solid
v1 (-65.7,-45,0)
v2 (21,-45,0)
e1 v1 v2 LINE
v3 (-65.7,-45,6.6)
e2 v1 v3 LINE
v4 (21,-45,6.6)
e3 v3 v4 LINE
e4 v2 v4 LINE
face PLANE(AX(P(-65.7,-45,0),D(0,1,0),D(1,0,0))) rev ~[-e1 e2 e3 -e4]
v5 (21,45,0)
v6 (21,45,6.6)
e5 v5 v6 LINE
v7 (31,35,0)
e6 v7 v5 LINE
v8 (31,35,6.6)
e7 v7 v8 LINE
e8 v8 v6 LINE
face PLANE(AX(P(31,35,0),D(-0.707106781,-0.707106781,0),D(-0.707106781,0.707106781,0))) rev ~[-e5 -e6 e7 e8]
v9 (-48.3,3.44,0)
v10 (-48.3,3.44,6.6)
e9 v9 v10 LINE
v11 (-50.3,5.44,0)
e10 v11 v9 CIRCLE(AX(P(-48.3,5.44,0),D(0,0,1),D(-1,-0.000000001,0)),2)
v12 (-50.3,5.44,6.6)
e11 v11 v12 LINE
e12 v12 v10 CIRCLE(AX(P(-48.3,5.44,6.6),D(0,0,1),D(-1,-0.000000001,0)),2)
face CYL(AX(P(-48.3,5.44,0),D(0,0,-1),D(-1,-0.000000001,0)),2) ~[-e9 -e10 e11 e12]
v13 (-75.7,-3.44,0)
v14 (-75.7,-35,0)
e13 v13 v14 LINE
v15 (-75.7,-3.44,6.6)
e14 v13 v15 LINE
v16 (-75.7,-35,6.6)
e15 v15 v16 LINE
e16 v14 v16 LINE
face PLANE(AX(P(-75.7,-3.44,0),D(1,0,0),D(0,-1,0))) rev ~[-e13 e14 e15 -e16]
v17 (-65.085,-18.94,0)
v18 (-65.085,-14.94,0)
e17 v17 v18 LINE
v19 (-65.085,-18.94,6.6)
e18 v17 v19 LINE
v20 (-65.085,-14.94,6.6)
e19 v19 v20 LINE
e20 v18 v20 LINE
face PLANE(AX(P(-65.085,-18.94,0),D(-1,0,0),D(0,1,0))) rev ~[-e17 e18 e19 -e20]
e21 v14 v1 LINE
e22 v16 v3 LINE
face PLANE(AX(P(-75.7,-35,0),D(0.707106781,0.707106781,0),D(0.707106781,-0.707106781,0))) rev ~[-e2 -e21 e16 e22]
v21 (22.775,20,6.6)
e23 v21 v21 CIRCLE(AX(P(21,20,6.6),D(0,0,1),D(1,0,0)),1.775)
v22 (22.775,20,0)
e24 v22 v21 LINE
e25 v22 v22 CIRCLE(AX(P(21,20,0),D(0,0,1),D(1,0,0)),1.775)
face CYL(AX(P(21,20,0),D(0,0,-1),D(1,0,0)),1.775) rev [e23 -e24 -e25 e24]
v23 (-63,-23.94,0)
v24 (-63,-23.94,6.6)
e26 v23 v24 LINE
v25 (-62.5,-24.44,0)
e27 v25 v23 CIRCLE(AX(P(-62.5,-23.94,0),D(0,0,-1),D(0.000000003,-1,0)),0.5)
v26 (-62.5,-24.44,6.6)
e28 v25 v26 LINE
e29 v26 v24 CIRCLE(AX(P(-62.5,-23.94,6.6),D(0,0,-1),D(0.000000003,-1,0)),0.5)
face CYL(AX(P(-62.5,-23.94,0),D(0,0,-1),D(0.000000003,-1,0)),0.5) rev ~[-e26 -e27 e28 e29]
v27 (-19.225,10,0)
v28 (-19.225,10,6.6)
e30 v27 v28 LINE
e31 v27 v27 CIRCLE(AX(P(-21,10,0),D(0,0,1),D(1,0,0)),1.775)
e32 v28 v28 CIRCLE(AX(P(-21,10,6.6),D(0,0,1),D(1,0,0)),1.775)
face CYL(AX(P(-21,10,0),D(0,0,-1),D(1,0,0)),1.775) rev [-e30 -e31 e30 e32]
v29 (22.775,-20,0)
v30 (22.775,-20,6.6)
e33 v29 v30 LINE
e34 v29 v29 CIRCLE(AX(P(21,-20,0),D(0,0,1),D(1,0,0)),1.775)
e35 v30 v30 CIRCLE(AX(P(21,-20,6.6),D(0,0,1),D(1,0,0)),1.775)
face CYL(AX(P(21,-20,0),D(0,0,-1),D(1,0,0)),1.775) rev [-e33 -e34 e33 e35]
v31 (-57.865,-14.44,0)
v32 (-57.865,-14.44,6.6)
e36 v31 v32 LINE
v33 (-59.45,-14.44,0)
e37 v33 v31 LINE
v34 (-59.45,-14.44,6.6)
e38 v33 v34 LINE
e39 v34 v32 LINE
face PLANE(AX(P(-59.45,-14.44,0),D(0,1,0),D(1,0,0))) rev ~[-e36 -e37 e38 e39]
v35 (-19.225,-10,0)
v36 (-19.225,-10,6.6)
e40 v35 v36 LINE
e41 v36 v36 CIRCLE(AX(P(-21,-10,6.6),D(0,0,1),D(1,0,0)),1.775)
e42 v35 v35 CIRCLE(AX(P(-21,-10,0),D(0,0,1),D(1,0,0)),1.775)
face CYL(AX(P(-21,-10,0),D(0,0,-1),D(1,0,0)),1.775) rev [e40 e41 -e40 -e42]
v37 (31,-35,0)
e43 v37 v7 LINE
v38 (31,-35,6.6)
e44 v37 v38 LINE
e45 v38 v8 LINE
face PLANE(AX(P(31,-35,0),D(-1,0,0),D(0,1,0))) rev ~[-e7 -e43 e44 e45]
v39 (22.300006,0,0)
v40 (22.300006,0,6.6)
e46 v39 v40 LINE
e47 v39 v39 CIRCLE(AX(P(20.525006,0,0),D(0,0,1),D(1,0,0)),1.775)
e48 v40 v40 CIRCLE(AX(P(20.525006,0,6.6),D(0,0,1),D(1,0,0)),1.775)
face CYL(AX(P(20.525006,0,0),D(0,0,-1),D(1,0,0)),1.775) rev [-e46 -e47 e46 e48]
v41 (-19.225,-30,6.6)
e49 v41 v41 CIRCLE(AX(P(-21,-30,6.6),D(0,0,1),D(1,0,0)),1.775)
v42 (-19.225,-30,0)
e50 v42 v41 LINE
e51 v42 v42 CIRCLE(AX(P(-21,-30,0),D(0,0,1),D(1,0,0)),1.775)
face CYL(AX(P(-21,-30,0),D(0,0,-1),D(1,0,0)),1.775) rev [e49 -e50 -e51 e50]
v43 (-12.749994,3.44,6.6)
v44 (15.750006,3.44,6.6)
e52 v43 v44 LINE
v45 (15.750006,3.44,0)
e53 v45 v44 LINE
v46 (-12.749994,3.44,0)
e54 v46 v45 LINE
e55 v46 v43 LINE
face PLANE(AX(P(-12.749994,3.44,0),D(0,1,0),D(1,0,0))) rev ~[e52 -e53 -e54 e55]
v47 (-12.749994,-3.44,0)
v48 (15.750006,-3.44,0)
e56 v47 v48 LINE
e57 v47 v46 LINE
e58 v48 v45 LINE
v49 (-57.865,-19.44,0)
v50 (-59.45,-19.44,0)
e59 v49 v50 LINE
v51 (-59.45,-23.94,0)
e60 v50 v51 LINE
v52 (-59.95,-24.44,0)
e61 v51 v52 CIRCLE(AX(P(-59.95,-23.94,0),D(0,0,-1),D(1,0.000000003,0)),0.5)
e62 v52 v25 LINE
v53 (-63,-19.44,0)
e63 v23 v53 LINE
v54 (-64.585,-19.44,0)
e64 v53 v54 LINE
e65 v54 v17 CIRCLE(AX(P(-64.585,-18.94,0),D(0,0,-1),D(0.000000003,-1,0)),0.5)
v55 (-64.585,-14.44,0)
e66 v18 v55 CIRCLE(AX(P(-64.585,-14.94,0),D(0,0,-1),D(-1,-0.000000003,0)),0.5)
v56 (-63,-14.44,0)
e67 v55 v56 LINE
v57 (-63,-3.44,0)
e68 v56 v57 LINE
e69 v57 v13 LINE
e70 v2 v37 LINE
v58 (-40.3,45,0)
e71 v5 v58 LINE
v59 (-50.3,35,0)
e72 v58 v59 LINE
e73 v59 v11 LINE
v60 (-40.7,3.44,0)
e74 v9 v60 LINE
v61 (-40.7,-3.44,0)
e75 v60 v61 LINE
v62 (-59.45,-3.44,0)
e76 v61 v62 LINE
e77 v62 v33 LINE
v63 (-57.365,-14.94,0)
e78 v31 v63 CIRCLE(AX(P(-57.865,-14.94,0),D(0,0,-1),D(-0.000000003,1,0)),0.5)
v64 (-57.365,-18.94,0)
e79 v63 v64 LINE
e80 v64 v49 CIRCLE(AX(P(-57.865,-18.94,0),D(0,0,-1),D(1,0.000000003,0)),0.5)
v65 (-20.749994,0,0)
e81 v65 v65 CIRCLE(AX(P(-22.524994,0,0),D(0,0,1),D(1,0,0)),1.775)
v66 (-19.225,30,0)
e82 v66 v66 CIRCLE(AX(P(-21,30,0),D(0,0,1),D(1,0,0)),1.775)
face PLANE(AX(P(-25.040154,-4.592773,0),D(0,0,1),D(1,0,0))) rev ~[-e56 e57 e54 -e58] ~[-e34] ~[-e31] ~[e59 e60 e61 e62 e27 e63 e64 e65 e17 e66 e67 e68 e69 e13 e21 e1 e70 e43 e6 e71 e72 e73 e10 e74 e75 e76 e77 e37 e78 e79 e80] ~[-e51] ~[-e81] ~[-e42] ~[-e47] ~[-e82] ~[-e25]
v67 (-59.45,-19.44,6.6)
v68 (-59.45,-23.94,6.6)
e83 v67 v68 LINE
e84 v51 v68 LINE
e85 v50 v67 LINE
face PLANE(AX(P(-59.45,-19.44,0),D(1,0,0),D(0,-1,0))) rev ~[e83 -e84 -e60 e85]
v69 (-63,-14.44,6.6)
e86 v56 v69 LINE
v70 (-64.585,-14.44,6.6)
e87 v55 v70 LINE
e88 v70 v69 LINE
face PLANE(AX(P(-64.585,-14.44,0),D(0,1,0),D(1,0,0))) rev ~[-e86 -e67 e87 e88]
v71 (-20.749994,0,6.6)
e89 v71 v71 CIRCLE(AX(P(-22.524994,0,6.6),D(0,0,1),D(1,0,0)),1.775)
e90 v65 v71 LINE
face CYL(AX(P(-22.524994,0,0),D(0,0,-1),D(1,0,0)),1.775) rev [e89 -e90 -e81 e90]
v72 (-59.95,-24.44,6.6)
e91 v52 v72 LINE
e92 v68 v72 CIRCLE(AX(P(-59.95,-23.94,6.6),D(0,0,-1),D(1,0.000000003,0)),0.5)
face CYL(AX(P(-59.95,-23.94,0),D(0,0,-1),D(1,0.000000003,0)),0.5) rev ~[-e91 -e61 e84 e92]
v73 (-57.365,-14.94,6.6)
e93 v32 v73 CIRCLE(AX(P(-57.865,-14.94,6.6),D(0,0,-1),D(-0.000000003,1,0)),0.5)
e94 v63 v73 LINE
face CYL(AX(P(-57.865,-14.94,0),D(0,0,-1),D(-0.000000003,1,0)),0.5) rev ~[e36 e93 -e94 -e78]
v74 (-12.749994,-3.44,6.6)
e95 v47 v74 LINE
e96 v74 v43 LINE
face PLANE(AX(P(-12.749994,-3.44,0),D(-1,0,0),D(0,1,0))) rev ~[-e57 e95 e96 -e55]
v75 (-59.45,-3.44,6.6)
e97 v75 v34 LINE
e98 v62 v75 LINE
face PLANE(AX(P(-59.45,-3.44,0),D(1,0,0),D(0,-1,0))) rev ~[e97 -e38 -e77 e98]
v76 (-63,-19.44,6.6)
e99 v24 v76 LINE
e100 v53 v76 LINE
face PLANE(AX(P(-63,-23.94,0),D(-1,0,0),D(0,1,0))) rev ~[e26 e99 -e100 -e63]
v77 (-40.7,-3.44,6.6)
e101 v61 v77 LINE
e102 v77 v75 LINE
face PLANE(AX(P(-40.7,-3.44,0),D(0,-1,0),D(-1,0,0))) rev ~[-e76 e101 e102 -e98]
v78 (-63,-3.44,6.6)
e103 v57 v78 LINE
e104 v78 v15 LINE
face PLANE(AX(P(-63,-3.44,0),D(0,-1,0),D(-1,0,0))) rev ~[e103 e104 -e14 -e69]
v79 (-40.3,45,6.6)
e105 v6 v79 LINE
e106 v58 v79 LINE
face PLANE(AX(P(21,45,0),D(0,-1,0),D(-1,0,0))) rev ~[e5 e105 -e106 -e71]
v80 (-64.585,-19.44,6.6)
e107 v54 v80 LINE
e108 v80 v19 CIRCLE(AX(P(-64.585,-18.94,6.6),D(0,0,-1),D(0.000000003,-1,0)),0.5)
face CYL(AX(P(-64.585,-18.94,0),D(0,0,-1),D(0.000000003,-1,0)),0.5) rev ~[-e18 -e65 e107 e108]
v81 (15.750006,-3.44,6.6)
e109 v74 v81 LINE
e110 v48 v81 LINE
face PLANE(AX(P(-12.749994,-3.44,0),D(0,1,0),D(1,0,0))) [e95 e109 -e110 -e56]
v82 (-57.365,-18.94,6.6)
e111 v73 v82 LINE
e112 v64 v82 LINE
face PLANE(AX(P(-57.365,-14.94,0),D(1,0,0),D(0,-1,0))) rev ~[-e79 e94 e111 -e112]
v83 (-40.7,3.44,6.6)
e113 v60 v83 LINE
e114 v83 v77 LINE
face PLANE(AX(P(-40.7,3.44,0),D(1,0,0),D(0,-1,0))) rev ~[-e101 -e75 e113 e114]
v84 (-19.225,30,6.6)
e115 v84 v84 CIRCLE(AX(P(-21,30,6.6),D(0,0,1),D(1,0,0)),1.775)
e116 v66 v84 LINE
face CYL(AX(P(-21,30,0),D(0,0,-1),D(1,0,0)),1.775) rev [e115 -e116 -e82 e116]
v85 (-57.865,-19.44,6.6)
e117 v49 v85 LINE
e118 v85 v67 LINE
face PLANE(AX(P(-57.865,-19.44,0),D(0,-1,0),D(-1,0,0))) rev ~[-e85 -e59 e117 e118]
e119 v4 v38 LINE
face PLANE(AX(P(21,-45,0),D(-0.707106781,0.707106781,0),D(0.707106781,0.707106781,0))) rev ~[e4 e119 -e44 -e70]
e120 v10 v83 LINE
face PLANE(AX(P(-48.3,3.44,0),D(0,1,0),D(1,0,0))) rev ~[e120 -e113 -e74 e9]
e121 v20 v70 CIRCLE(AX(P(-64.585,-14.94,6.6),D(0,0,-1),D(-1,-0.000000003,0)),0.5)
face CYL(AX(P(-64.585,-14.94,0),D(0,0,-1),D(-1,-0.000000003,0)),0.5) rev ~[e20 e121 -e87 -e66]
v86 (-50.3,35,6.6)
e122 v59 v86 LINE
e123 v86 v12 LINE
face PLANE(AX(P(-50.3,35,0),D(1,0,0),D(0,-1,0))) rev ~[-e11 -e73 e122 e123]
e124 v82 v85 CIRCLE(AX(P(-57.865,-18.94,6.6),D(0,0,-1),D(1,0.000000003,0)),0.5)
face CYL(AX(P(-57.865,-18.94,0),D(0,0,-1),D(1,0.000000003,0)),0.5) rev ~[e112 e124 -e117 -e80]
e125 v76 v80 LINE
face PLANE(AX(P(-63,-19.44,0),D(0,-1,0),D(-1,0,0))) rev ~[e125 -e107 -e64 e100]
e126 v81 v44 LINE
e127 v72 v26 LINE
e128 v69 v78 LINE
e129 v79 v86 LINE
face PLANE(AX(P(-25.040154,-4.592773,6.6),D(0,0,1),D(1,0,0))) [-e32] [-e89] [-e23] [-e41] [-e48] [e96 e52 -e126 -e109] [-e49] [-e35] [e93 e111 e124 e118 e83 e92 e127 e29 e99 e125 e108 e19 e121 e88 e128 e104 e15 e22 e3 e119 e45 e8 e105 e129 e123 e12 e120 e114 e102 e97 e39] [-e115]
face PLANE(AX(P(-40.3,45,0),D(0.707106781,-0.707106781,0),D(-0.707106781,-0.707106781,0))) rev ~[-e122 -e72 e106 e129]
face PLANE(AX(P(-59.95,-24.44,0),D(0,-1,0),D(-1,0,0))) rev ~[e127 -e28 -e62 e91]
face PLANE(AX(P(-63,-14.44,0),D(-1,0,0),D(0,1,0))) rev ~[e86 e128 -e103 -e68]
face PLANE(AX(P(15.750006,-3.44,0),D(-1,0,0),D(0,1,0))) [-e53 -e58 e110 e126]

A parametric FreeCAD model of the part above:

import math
import FreeCAD as App
import Part
import Sketcher
Q = App.Units.Quantity

doc = App.newDocument("Part")
body = doc.addObject("PartDesign::Body", "Body")

sketch1 = body.newObject("Sketcher::SketchObject", "Sketch")
sketch1.AttachmentSupport = (doc.getObject("XY_Plane"), [""])
sketch1.MapMode = "FlatFace"
sketch1.addGeometry([
    Part.LineSegment(App.Vector(-40.3, 45, 0), App.Vector(-50.3, 35, 0)),
    Part.LineSegment(App.Vector(-50.3, 35, 0), App.Vector(-50.3, 5.44, 0)),
    Part.ArcOfCircle(Part.Circle(App.Vector(-48.3, 5.44, 0), App.Vector(0, 0, 1), 2), math.radians(-180), math.radians(-90)),
    Part.LineSegment(App.Vector(-48.3, 3.44, 0), App.Vector(-40.7, 3.44, 0)),
    Part.LineSegment(App.Vector(-40.7, 3.44, 0), App.Vector(-40.7, -3.44, 0)),
    Part.LineSegment(App.Vector(-40.7, -3.44, 0), App.Vector(-59.45, -3.44, 0)),
    Part.LineSegment(App.Vector(-59.45, -3.44, 0), App.Vector(-59.45, -14.44, 0)),
    Part.LineSegment(App.Vector(-59.45, -14.44, 0), App.Vector(-57.87, -14.44, 0)),
    Part.ArcOfCircle(Part.Circle(App.Vector(-57.86, -14.94, 0), App.Vector(0, 0, 1), 0.5), math.radians(0), math.radians(90)),
    Part.LineSegment(App.Vector(-57.37, -14.94, 0), App.Vector(-57.37, -18.94, 0)),
    Part.ArcOfCircle(Part.Circle(App.Vector(-57.86, -18.94, 0), App.Vector(0, 0, 1), 0.5), math.radians(-90), math.radians(0)),
    Part.LineSegment(App.Vector(-57.87, -19.44, 0), App.Vector(-59.45, -19.44, 0)),
    Part.LineSegment(App.Vector(-59.45, -19.44, 0), App.Vector(-59.45, -23.94, 0)),
    Part.ArcOfCircle(Part.Circle(App.Vector(-59.95, -23.94, 0), App.Vector(0, 0, 1), 0.5), math.radians(-90), math.radians(0)),
    Part.LineSegment(App.Vector(-59.95, -24.44, 0), App.Vector(-62.5, -24.44, 0)),
    Part.ArcOfCircle(Part.Circle(App.Vector(-62.5, -23.94, 0), App.Vector(0, 0, 1), 0.5), math.radians(180), math.radians(270)),
    Part.LineSegment(App.Vector(-63, -23.94, 0), App.Vector(-63, -19.44, 0)),
    Part.LineSegment(App.Vector(-63, -19.44, 0), App.Vector(-64.58, -19.44, 0)),
    Part.ArcOfCircle(Part.Circle(App.Vector(-64.59, -18.94, 0), App.Vector(0, 0, 1), 0.5), math.radians(180), math.radians(270)),
    Part.LineSegment(App.Vector(-65.08, -18.94, 0), App.Vector(-65.08, -14.94, 0)),
    Part.ArcOfCircle(Part.Circle(App.Vector(-64.59, -14.94, 0), App.Vector(0, 0, 1), 0.5), math.radians(90), math.radians(180)),
    Part.LineSegment(App.Vector(-64.58, -14.44, 0), App.Vector(-63, -14.44, 0)),
    Part.LineSegment(App.Vector(-63, -14.44, 0), App.Vector(-63, -3.44, 0)),
    Part.LineSegment(App.Vector(-63, -3.44, 0), App.Vector(-75.7, -3.44, 0)),
    Part.LineSegment(App.Vector(-75.7, -3.44, 0), App.Vector(-75.7, -35, 0)),
    Part.LineSegment(App.Vector(-75.7, -35, 0), App.Vector(-65.7, -45, 0)),
    Part.LineSegment(App.Vector(-65.7, -45, 0), App.Vector(21, -45, 0)),
    Part.LineSegment(App.Vector(21, -45, 0), App.Vector(31, -35, 0)),
    Part.LineSegment(App.Vector(31, -35, 0), App.Vector(31, 35, 0)),
    Part.LineSegment(App.Vector(31, 35, 0), App.Vector(21, 45, 0)),
    Part.LineSegment(App.Vector(21, 45, 0), App.Vector(-40.3, 45, 0)),
    Part.Circle(App.Vector(-21, -30, 0), App.Vector(0, 0, 1), 1.77),
    Part.Circle(App.Vector(-21, -10, 0), App.Vector(0, 0, 1), 1.77),
    Part.Circle(App.Vector(21, -20, 0), App.Vector(0, 0, 1), 1.77),
    Part.Circle(App.Vector(-22.52, 0, 0), App.Vector(0, 0, 1), 1.77),
    Part.Circle(App.Vector(-21, 10, 0), App.Vector(0, 0, 1), 1.77),
    Part.Circle(App.Vector(-21, 30, 0), App.Vector(0, 0, 1), 1.77),
    Part.LineSegment(App.Vector(15.75, -3.44, 0), App.Vector(-12.75, -3.44, 0)),
    Part.LineSegment(App.Vector(-12.75, -3.44, 0), App.Vector(-12.75, 3.44, 0)),
    Part.LineSegment(App.Vector(-12.75, 3.44, 0), App.Vector(15.75, 3.44, 0)),
    Part.LineSegment(App.Vector(15.75, 3.44, 0), App.Vector(15.75, -3.44, 0)),
    Part.Circle(App.Vector(20.53, 0, 0), App.Vector(0, 0, 1), 1.77),
    Part.Circle(App.Vector(21, 20, 0), App.Vector(0, 0, 1), 1.77),
], False)
sketch1.addConstraint([
    Sketcher.Constraint("Coincident", 0, 2, 1, 1),
    Sketcher.Constraint("Tangent", 1, 2, 2, 1),
    Sketcher.Constraint("Tangent", 2, 2, 3, 1),
    Sketcher.Constraint("Coincident", 3, 2, 4, 1),
    Sketcher.Constraint("Coincident", 4, 2, 5, 1),
    Sketcher.Constraint("Coincident", 5, 2, 6, 1),
    Sketcher.Constraint("Coincident", 6, 2, 7, 1),
    Sketcher.Constraint("Tangent", 7, 2, 8, 2),
    Sketcher.Constraint("Tangent", 8, 1, 9, 1),
    Sketcher.Constraint("Tangent", 9, 2, 10, 2),
    Sketcher.Constraint("Tangent", 10, 1, 11, 1),
    Sketcher.Constraint("Coincident", 11, 2, 12, 1),
    Sketcher.Constraint("Tangent", 12, 2, 13, 2),
    Sketcher.Constraint("Tangent", 13, 1, 14, 1),
    Sketcher.Constraint("Tangent", 14, 2, 15, 2),
    Sketcher.Constraint("Tangent", 15, 1, 16, 1),
    Sketcher.Constraint("Coincident", 16, 2, 17, 1),
    Sketcher.Constraint("Tangent", 17, 2, 18, 2),
    Sketcher.Constraint("Tangent", 18, 1, 19, 1),
    Sketcher.Constraint("Tangent", 19, 2, 20, 2),
    Sketcher.Constraint("Tangent", 20, 1, 21, 1),
    Sketcher.Constraint("Coincident", 21, 2, 22, 1),
    Sketcher.Constraint("Coincident", 22, 2, 23, 1),
    Sketcher.Constraint("Coincident", 23, 2, 24, 1),
    Sketcher.Constraint("Coincident", 24, 2, 25, 1),
    Sketcher.Constraint("Coincident", 25, 2, 26, 1),
    Sketcher.Constraint("Coincident", 26, 2, 27, 1),
    Sketcher.Constraint("Coincident", 27, 2, 28, 1),
    Sketcher.Constraint("Coincident", 28, 2, 29, 1),
    Sketcher.Constraint("Coincident", 29, 2, 30, 1),
    Sketcher.Constraint("Coincident", 30, 2, 0, 1),
    Sketcher.Constraint("Coincident", 37, 2, 38, 1),
    Sketcher.Constraint("Coincident", 38, 2, 39, 1),
    Sketcher.Constraint("Coincident", 39, 2, 40, 1),
    Sketcher.Constraint("Coincident", 40, 2, 37, 1),
    Sketcher.Constraint("Vertical", 1),
    Sketcher.Constraint("Horizontal", 3),
    Sketcher.Constraint("Vertical", 4),
    Sketcher.Constraint("Horizontal", 5),
    Sketcher.Constraint("Vertical", 6),
    Sketcher.Constraint("Horizontal", 7),
    Sketcher.Constraint("Vertical", 9),
    Sketcher.Constraint("Horizontal", 11),
    Sketcher.Constraint("Vertical", 12),
    Sketcher.Constraint("Horizontal", 14),
    Sketcher.Constraint("Vertical", 16),
    Sketcher.Constraint("Horizontal", 17),
    Sketcher.Constraint("Vertical", 19),
    Sketcher.Constraint("Horizontal", 21),
    Sketcher.Constraint("Vertical", 22),
    Sketcher.Constraint("Horizontal", 23),
    Sketcher.Constraint("Vertical", 24),
    Sketcher.Constraint("Horizontal", 26),
    Sketcher.Constraint("Vertical", 28),
    Sketcher.Constraint("Horizontal", 30),
    Sketcher.Constraint("Horizontal", 37),
    Sketcher.Constraint("Vertical", 38),
    Sketcher.Constraint("Horizontal", 39),
    Sketcher.Constraint("Vertical", 40),
    Sketcher.Constraint("Equal", 8, 10),
    Sketcher.Constraint("Equal", 10, 13),
    Sketcher.Constraint("Equal", 13, 15),
    Sketcher.Constraint("Equal", 15, 18),
    Sketcher.Constraint("Equal", 18, 20),
    Sketcher.Constraint("Equal", 31, 32),
    Sketcher.Constraint("Equal", 32, 33),
    Sketcher.Constraint("Equal", 33, 34),
    Sketcher.Constraint("Equal", 34, 35),
    Sketcher.Constraint("Equal", 35, 36),
    Sketcher.Constraint("Equal", 36, 41),
    Sketcher.Constraint("Equal", 41, 42),
    Sketcher.Constraint("Symmetric", 32, 3, 35, 3, -1),
    Sketcher.Constraint("Symmetric", 31, 3, 36, 3, -1),
    Sketcher.Constraint("Symmetric", 33, 3, 42, 3, -1),
    Sketcher.Constraint("Symmetric", 26, 2, 29, 2, -1),
    Sketcher.Constraint("PointOnObject", 34, 3, -1),
    Sketcher.Constraint("PointOnObject", 41, 3, -1),
    Sketcher.Constraint("Perpendicular", 0, 25),
    Sketcher.Constraint("Perpendicular", 25, 27),
    Sketcher.Constraint("Perpendicular", 27, 29),
    Sketcher.Constraint("Horizontal", 10, 3, 18, 3),
    Sketcher.Constraint("Horizontal", 8, 3, 20, 3),
    Sketcher.Constraint("Horizontal", 5, 2, 22, 2),
    Sketcher.Constraint("Horizontal", 24, 2, 27, 2),
    Sketcher.Constraint("Horizontal", 0, 2, 28, 2),
    Sketcher.Constraint("Horizontal", 23, 2, 37, 2),
    Sketcher.Constraint("Horizontal", 3, 2, 38, 2),
    Sketcher.Constraint("Vertical", 31, 3, 32, 3),
    Sketcher.Constraint("Vertical", 6, 2, 11, 2),
    Sketcher.Constraint("Vertical", 16, 2, 21, 2),
    Sketcher.Constraint("Vertical", 42, 3, 26, 2),
    Sketcher.Constraint("Equal", 11, 17),
    Sketcher.Constraint("Equal", 0, 25),
    Sketcher.Constraint("Radius", 2, Q("2 mm")),
    Sketcher.Constraint("Radius", 8, Q("0.5 mm")),
    Sketcher.Constraint("Diameter", 31, Q("3.55 mm")),
    Sketcher.Constraint("DistanceY", 6, 2, 6, 1, Q("11 mm")),
    Sketcher.Constraint("DistanceY", 9, 2, 9, 1, Q("4 mm")),
    Sketcher.Constraint("DistanceY", 28, 1, 28, 2, Q("70 mm")),
    Sketcher.Constraint("DistanceX", 3, 1, 3, 2, Q("7.6 mm")),
    Sketcher.Constraint("DistanceX", 23, 2, 23, 1, Q("12.7 mm")),
    Sketcher.Constraint("DistanceX", 26, 1, 26, 2, Q("86.7 mm")),
    Sketcher.Constraint("DistanceX", 30, 2, 30, 1, Q("61.3 mm")),
    Sketcher.Constraint("DistanceX", 37, 2, 37, 1, Q("28.5 mm")),
    Sketcher.Constraint("DistanceY", 12, 2, 12, 1, Q("4.5 mm")),
    Sketcher.Constraint("DistanceX", 31, 3, -1, 1, Q("21 mm")),
    Sketcher.Constraint("DistanceY", 31, 3, -1, 1, Q("30 mm")),
    Sketcher.Constraint("DistanceY", 32, 3, -1, 1, Q("10 mm")),
    Sketcher.Constraint("DistanceX", -1, 1, 33, 3, Q("21 mm")),
    Sketcher.Constraint("DistanceY", 33, 3, -1, 1, Q("20 mm")),
    Sketcher.Constraint("DistanceX", 15, 1, -1, 1, Q("63 mm")),
    Sketcher.Constraint("DistanceX", 5, 2, 5, 1, Q("18.75 mm")),
    Sketcher.Constraint("DistanceY", 1, 2, 1, 1, Q("29.56 mm")),
    Sketcher.Constraint("DistanceY", 4, 2, 4, 1, Q("6.88 mm")),
    Sketcher.Constraint("DistanceX", 7, 1, 7, 2, Q("1.585 mm")),
    Sketcher.Constraint("DistanceX", 34, 3, 41, 3, Q("43.05 mm")),
    Sketcher.Constraint("DistanceX", 34, 3, 37, 2, Q("9.775 mm")),
    Sketcher.Constraint("DistanceX", 34, 3, -1, 1, Q("22.524994 mm")),
])
pad1 = body.newObject("PartDesign::Pad", "Pad")
pad1.Profile = sketch1
pad1.Length = 6.6

doc.recompute()
